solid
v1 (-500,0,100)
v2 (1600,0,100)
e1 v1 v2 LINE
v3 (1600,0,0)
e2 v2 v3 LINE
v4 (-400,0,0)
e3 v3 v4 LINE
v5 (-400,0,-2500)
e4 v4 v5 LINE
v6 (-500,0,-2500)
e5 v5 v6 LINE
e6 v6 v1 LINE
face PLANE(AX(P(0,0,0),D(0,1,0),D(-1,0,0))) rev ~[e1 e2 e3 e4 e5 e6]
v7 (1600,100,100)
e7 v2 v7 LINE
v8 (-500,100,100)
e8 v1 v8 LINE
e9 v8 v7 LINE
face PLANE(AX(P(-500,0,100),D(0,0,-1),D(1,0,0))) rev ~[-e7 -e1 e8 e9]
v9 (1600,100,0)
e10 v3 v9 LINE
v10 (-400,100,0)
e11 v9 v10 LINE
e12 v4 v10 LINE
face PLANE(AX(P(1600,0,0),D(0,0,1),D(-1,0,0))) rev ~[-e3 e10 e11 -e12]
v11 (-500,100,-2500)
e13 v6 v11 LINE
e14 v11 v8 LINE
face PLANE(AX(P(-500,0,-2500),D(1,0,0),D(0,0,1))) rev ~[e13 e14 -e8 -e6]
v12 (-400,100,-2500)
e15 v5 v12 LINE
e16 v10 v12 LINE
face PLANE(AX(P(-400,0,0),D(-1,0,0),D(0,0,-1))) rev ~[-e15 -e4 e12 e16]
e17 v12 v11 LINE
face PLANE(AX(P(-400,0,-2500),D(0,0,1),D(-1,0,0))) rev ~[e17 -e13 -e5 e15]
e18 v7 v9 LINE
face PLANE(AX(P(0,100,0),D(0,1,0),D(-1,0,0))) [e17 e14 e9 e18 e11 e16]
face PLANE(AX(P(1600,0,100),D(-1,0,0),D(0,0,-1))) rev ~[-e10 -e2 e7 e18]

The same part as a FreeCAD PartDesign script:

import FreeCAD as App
import Part
import Sketcher
Q = App.Units.Quantity


def add_polygon(sketch, points):
    """Adds a closed chain of lines whose ends are joined by coincident constraints."""
    first, n = sketch.GeometryCount, len(points)
    for a, b in zip(points, points[1:] + points[:1]):
        sketch.addGeometry(Part.LineSegment(App.Vector(*a, 0), App.Vector(*b, 0)), False)
    for i in range(n):
        sketch.addConstraint(Sketcher.Constraint("Coincident", first + i, 2, first + (i + 1) % n, 1))

doc = App.newDocument("Part")
body = doc.addObject("PartDesign::Body", "Body")

sketch1 = body.newObject("Sketcher::SketchObject", "Sketch")
sketch1.AttachmentSupport = (doc.getObject("XZ_Plane"), [""])
sketch1.MapMode = "FlatFace"
add_polygon(sketch1, [(-400, -2500), (-500, -2500), (-500, 100), (1600, 100), (1600, 0), (-400, 0)])
sketch1.addConstraint([
    Sketcher.Constraint("Horizontal", 0),
    Sketcher.Constraint("Vertical", 1),
    Sketcher.Constraint("Horizontal", 2),
    Sketcher.Constraint("Vertical", 3),
    Sketcher.Constraint("Horizontal", 4),
    Sketcher.Constraint("Vertical", 5),
    Sketcher.Constraint("PointOnObject", 3, 2, -1),
    Sketcher.Constraint("Equal", 0, 3),
    Sketcher.Constraint("DistanceX", 0, 2, 0, 1, Q("100 mm")),
    Sketcher.Constraint("DistanceX", 4, 2, 4, 1, Q("2000 mm")),
    Sketcher.Constraint("DistanceY", 5, 2, 5, 1, Q("2500 mm")),
    Sketcher.Constraint("DistanceX", 0, 2, -1, 1, Q("500 mm")),
])
pad1 = body.newObject("PartDesign::Pad", "Pad")
pad1.Profile = sketch1
pad1.Length = 100
pad1.Reversed = True

doc.recompute()
